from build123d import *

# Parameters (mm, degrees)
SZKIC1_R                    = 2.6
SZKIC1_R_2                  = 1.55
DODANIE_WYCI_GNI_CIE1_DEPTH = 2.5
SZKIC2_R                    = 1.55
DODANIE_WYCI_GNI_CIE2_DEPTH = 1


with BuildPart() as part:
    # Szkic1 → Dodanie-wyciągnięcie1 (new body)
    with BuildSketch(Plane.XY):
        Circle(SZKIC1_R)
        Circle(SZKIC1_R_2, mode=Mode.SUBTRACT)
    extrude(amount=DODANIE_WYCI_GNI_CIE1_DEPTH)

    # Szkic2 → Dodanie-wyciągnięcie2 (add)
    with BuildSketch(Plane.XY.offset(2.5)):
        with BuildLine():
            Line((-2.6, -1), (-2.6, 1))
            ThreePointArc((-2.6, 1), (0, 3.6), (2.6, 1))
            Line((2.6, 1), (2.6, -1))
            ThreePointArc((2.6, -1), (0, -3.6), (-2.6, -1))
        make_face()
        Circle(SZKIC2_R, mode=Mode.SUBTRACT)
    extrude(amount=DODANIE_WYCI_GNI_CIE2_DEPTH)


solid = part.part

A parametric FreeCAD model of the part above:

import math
import FreeCAD as App
import Part
import Sketcher
from FreeCAD import Vector

doc = App.newDocument("Part")
body = doc.addObject("PartDesign::Body", "Body")

sketch1 = body.newObject("Sketcher::SketchObject", "Sketch")
sketch1.AttachmentSupport = (doc.getObject("XY_Plane"), [""])
sketch1.MapMode = "FlatFace"
sketch1.addGeometry([
    Part.Circle(Vector(0, 0, 0), Vector(0, 0, 1), 2.6),
    Part.Circle(Vector(0, 0, 0), Vector(0, 0, 1), 1.55),
], False)
sketch1.addConstraint([
    Sketcher.Constraint("Coincident", 0, 3, -1, 1),
    Sketcher.Constraint("Coincident", 1, 3, -1, 1),
    Sketcher.Constraint("Diameter", 0, 5.2),
    Sketcher.Constraint("Diameter", 1, 3.1),
])
pad1 = body.newObject("PartDesign::Pad", "Pad")
pad1.Profile = sketch1
pad1.Length = 2.5

sketch2 = body.newObject("Sketcher::SketchObject", "Sketch001")
sketch2.AttachmentSupport = (doc.getObject("XY_Plane"), [""])
sketch2.MapMode = "FlatFace"
sketch2.AttachmentOffset = App.Placement(Vector(0, 0, 2.5), App.Rotation())
sketch2.addGeometry([
    Part.LineSegment(Vector(-2.6, 1, 0), Vector(-2.6, -1, 0)),
    Part.ArcOfCircle(Part.Circle(Vector(0, -1, 0), Vector(0, 0, 1), 2.6), math.radians(180), math.radians(360)),
    Part.LineSegment(Vector(2.6, -1, 0), Vector(2.6, 1, 0)),
    Part.ArcOfCircle(Part.Circle(Vector(0, 1, 0), Vector(0, 0, 1), 2.6), math.radians(0), math.radians(180)),
    Part.Circle(Vector(0, 0, 0), Vector(0, 0, 1), 1.55),
], False)
sketch2.addConstraint([
    Sketcher.Constraint("Tangent", 0, 2, 1, 1),
    Sketcher.Constraint("Tangent", 1, 2, 2, 1),
    Sketcher.Constraint("Tangent", 2, 2, 3, 1),
    Sketcher.Constraint("Tangent", 3, 2, 0, 1),
    Sketcher.Constraint("Vertical", 0),
    Sketcher.Constraint("Vertical", 2),
    Sketcher.Constraint("Coincident", 4, 3, -1, 1),
    Sketcher.Constraint("Symmetric", 1, 3, 3, 3, -1, 1),
    Sketcher.Constraint("Diameter", 4, 3.1),
    Sketcher.Constraint("Radius", 1, 2.6),
    Sketcher.Constraint("DistanceY", 0, 2, 0, 1, 2.0),
])
pad2 = body.newObject("PartDesign::Pad", "Pad001")
pad2.Profile = sketch2
pad2.Length = 1

doc.recompute()
